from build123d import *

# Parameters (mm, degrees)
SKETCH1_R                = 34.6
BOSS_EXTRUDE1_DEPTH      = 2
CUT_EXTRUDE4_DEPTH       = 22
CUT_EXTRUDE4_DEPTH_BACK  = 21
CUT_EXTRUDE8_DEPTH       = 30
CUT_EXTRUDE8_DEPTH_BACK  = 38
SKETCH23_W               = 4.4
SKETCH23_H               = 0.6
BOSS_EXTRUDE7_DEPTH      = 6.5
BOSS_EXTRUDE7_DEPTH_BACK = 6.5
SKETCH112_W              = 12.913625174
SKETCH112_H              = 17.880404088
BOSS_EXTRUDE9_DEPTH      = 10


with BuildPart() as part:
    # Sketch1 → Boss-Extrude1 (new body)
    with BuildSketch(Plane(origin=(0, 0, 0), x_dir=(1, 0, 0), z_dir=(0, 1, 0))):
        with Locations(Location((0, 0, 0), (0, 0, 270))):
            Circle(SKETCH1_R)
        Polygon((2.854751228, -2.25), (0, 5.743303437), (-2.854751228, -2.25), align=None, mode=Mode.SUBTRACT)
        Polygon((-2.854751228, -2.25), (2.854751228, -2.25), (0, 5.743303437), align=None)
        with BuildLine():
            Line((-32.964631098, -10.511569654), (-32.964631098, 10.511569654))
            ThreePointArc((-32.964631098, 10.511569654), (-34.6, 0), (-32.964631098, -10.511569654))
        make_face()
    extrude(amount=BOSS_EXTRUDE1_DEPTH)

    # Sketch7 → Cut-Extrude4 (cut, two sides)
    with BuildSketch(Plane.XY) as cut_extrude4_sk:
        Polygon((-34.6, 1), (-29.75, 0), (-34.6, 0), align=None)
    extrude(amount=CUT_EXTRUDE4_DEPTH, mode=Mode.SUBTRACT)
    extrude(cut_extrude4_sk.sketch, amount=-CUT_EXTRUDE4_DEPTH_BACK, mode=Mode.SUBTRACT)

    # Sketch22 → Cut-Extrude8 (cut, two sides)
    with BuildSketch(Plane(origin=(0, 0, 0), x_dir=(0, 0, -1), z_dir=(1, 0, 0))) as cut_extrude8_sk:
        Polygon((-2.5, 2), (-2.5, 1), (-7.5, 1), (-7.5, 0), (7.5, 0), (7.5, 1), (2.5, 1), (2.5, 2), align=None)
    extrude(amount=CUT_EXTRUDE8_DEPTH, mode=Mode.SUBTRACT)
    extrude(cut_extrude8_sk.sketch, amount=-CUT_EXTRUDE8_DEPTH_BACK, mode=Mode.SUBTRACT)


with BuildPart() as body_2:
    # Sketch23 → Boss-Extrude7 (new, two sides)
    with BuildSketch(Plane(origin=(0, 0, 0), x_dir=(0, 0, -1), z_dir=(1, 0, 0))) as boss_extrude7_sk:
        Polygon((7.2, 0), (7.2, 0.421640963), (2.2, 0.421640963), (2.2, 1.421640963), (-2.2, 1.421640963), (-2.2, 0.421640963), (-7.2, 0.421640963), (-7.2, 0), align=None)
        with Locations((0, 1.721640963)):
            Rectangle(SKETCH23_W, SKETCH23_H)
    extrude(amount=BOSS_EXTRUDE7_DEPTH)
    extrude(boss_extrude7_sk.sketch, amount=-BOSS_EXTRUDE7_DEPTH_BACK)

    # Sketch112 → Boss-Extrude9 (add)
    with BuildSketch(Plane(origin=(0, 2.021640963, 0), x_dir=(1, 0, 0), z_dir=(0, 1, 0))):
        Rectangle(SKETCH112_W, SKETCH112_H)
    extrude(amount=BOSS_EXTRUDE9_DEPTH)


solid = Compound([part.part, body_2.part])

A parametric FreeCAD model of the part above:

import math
import FreeCAD as App
import Part
import Sketcher

V = App.Vector

doc = App.newDocument("Part")
params = doc.addObject("Spreadsheet::Sheet", "Params")
for row, (alias, value) in enumerate([
    ("sketch1_radius", "34.6 mm"),
    ("pad1_length", "2 mm"),
    ("sketch2_height", "1 mm"),
    ("sketch2_width", "4.85 mm"),
    ("sketch3_width", "1 mm"),
    ("sketch3_height", "5 mm"),
    ("pocket2_length", "30 mm"),
    ("pocket2_length2", "38 mm"),
    ("sketch4_height", "5 mm"),
    ("sketch4_width", "1.6 mm"),
    ("sketch4_height2", "4.4 mm"),
    ("pad2_length", "6.5 mm"),
    ("pad2_length2", "6.5 mm"),
    ("pad3_length", "10 mm"),
], start=1):
    params.set(f"A{row}", alias)
    params.set(f"B{row}", "=" + value)
    params.setAlias(f"B{row}", alias)

body = doc.addObject("PartDesign::Body", "Body")

sketch1 = body.newObject("Sketcher::SketchObject", "Sketch")
sketch1.AttachmentSupport = (doc.getObject("XZ_Plane"), [""])
sketch1.MapMode = "FlatFace"
sketch1.addGeometry([
    Part.ArcOfCircle(Part.Circle(V(0, 0, 0), V(0, 0, 1), 34.6), math.radians(-162.313861), math.radians(162.313861)),
    Part.ArcOfCircle(Part.Circle(V(0, 0, 0), V(0, 0, 1), 34.6), math.radians(162.313861), math.radians(197.686139)),
], False)
sketch1.addConstraint([
    Sketcher.Constraint("Tangent", 0, 1, 1, 2),
    Sketcher.Constraint("Coincident", 1, 1, 0, 2),
    Sketcher.Constraint("Coincident", 0, 3, -1, 1),
    Sketcher.Constraint("Vertical", 0, 1, 1, 1),
    Sketcher.Constraint("Radius", 0, 34.6),
    Sketcher.Constraint("DistanceX", 0, 1, -1, 1, 32.964631),
])
sketch1.setExpression("Constraints[4]", "Params.sketch1_radius")
pad1 = body.newObject("PartDesign::Pad", "Pad")
pad1.Profile = sketch1
pad1.setExpression("Length", "Params.pad1_length")
pad1.Reversed = True

sketch2 = body.newObject("Sketcher::SketchObject", "Sketch001")
sketch2.AttachmentSupport = (doc.getObject("XY_Plane"), [""])
sketch2.MapMode = "FlatFace"
sketch2.addGeometry([
    Part.LineSegment(V(-29.75, 0, 0), V(-34.6, 1, 0)),
    Part.LineSegment(V(-34.6, 1, 0), V(-34.6, 0, 0)),
    Part.LineSegment(V(-34.6, 0, 0), V(-29.75, 0, 0)),
], False)
sketch2.addConstraint([
    Sketcher.Constraint("Coincident", 0, 2, 1, 1),
    Sketcher.Constraint("Coincident", 1, 2, 2, 1),
    Sketcher.Constraint("Coincident", 2, 2, 0, 1),
    Sketcher.Constraint("Vertical", 1),
    Sketcher.Constraint("Horizontal", 2),
    Sketcher.Constraint("PointOnObject", 1, 2, -1),
    Sketcher.Constraint("DistanceY", 1, 2, 1, 1, 1.0),
    Sketcher.Constraint("DistanceX", 2, 1, 2, 2, 4.85),
    Sketcher.Constraint("DistanceX", 0, 2, -1, 1, 34.6),
])
sketch2.setExpression("Constraints[6]", "Params.sketch2_height")
sketch2.setExpression("Constraints[7]", "Params.sketch2_width")
pocket1 = body.newObject("PartDesign::Pocket", "Pocket")
pocket1.Profile = sketch2
pocket1.Type = "ThroughAll"
pocket1.Midplane = True

sketch3 = body.newObject("Sketcher::SketchObject", "Sketch002")
sketch3.AttachmentSupport = (doc.getObject("YZ_Plane"), [""])
sketch3.MapMode = "FlatFace"
sketch3.addGeometry([
    Part.LineSegment(V(2, 2.5, 0), V(1, 2.5, 0)),
    Part.LineSegment(V(1, 2.5, 0), V(1, 7.5, 0)),
    Part.LineSegment(V(1, 7.5, 0), V(0, 7.5, 0)),
    Part.LineSegment(V(0, 7.5, 0), V(0, -7.5, 0)),
    Part.LineSegment(V(0, -7.5, 0), V(1, -7.5, 0)),
    Part.LineSegment(V(1, -7.5, 0), V(1, -2.5, 0)),
    Part.LineSegment(V(1, -2.5, 0), V(2, -2.5, 0)),
    Part.LineSegment(V(2, -2.5, 0), V(2, 2.5, 0)),
], False)
sketch3.addConstraint([
    Sketcher.Constraint("Coincident", 0, 2, 1, 1),
    Sketcher.Constraint("Coincident", 1, 2, 2, 1),
    Sketcher.Constraint("Coincident", 2, 2, 3, 1),
    Sketcher.Constraint("Coincident", 3, 2, 4, 1),
    Sketcher.Constraint("Coincident", 4, 2, 5, 1),
    Sketcher.Constraint("Coincident", 5, 2, 6, 1),
    Sketcher.Constraint("Coincident", 6, 2, 7, 1),
    Sketcher.Constraint("Coincident", 7, 2, 0, 1),
    Sketcher.Constraint("Horizontal", 0),
    Sketcher.Constraint("Vertical", 1),
    Sketcher.Constraint("Horizontal", 2),
    Sketcher.Constraint("Vertical", 3),
    Sketcher.Constraint("Horizontal", 4),
    Sketcher.Constraint("Vertical", 5),
    Sketcher.Constraint("Horizontal", 6),
    Sketcher.Constraint("Vertical", 7),
    Sketcher.Constraint("Symmetric", 2, 2, 3, 2, -1, 1),
    Sketcher.Constraint("Symmetric", 0, 2, 5, 2, -1),
    Sketcher.Constraint("Equal", 0, 2),
    Sketcher.Constraint("Equal", 5, 7),
    Sketcher.Constraint("DistanceX", 0, 2, 0, 1, 1.0),
    Sketcher.Constraint("DistanceY", 1, 1, 1, 2, 5.0),
])
sketch3.setExpression("Constraints[20]", "Params.sketch3_width")
sketch3.setExpression("Constraints[21]", "Params.sketch3_height")
pocket2 = body.newObject("PartDesign::Pocket", "Pocket001")
pocket2.Profile = sketch3
pocket2.Type = "TwoLengths"
pocket2.setExpression("Length", "Params.pocket2_length")
pocket2.setExpression("Length2", "Params.pocket2_length2")
pocket2.Reversed = True
body2 = doc.addObject("PartDesign::Body", "Body001")

sketch4 = body2.newObject("Sketcher::SketchObject", "Sketch003")
sketch4.AttachmentSupport = (doc.getObject("YZ_Plane001"), [""])
sketch4.MapMode = "FlatFace"
sketch4.addGeometry([
    Part.LineSegment(V(0, -7.2, 0), V(0.421641, -7.2, 0)),
    Part.LineSegment(V(0.421641, -7.2, 0), V(0.421641, -2.2, 0)),
    Part.LineSegment(V(0.421641, -2.2, 0), V(2.021641, -2.2, 0)),
    Part.LineSegment(V(2.021641, -2.2, 0), V(2.021641, 2.2, 0)),
    Part.LineSegment(V(2.021641, 2.2, 0), V(0.421641, 2.2, 0)),
    Part.LineSegment(V(0.421641, 2.2, 0), V(0.421641, 7.2, 0)),
    Part.LineSegment(V(0.421641, 7.2, 0), V(0, 7.2, 0)),
    Part.LineSegment(V(0, 7.2, 0), V(0, -7.2, 0)),
], False)
sketch4.addConstraint([
    Sketcher.Constraint("Coincident", 0, 2, 1, 1),
    Sketcher.Constraint("Coincident", 1, 2, 2, 1),
    Sketcher.Constraint("Coincident", 2, 2, 3, 1),
    Sketcher.Constraint("Coincident", 3, 2, 4, 1),
    Sketcher.Constraint("Coincident", 4, 2, 5, 1),
    Sketcher.Constraint("Coincident", 5, 2, 6, 1),
    Sketcher.Constraint("Coincident", 6, 2, 7, 1),
    Sketcher.Constraint("Coincident", 7, 2, 0, 1),
    Sketcher.Constraint("Horizontal", 0),
    Sketcher.Constraint("Vertical", 1),
    Sketcher.Constraint("Horizontal", 2),
    Sketcher.Constraint("Vertical", 3),
    Sketcher.Constraint("Horizontal", 4),
    Sketcher.Constraint("Vertical", 5),
    Sketcher.Constraint("Horizontal", 6),
    Sketcher.Constraint("Vertical", 7),
    Sketcher.Constraint("Symmetric", 6, 2, 7, 2, -1, 1),
    Sketcher.Constraint("Symmetric", 1, 2, 4, 2, -1),
    Sketcher.Constraint("DistanceY", 1, 1, 1, 2, 5.0),
    Sketcher.Constraint("DistanceX", 2, 1, 2, 2, 1.6),
    Sketcher.Constraint("DistanceY", 3, 1, 3, 2, 4.4),
    Sketcher.Constraint("DistanceX", 0, 1, 0, 2, 0.421641),
])
sketch4.setExpression("Constraints[18]", "Params.sketch4_height")
sketch4.setExpression("Constraints[19]", "Params.sketch4_width")
sketch4.setExpression("Constraints[20]", "Params.sketch4_height2")
pad2 = body2.newObject("PartDesign::Pad", "Pad001")
pad2.Profile = sketch4
pad2.Type = "TwoLengths"
pad2.setExpression("Length", "Params.pad2_length")
pad2.setExpression("Length2", "Params.pad2_length2")

sketch5 = body2.newObject("Sketcher::SketchObject", "Sketch004")
sketch5.AttachmentSupport = (doc.getObject("XZ_Plane001"), [""])
sketch5.MapMode = "FlatFace"
sketch5.AttachmentOffset = App.Placement(V(0, 0, -2.021641), App.Rotation())
sketch5.addGeometry([
    Part.LineSegment(V(-6.456813, -8.940202, 0), V(-6.456813, 8.940202, 0)),
    Part.LineSegment(V(-6.456813, 8.940202, 0), V(6.456813, 8.940202, 0)),
    Part.LineSegment(V(6.456813, 8.940202, 0), V(6.456813, -8.940202, 0)),
    Part.LineSegment(V(6.456813, -8.940202, 0), V(-6.456813, -8.940202, 0)),
], False)
sketch5.addConstraint([
    Sketcher.Constraint("Coincident", 0, 2, 1, 1),
    Sketcher.Constraint("Coincident", 1, 2, 2, 1),
    Sketcher.Constraint("Coincident", 2, 2, 3, 1),
    Sketcher.Constraint("Coincident", 3, 2, 0, 1),
    Sketcher.Constraint("Vertical", 0),
    Sketcher.Constraint("Horizontal", 1),
    Sketcher.Constraint("Vertical", 2),
    Sketcher.Constraint("Horizontal", 3),
    Sketcher.Constraint("Symmetric", 0, 2, 2, 2, -1, 1),
    Sketcher.Constraint("DistanceX", 1, 1, 1, 2, 12.913625),
    Sketcher.Constraint("DistanceY", 0, 1, 0, 2, 17.880404),
])
pad3 = body2.newObject("PartDesign::Pad", "Pad002")
pad3.Profile = sketch5
pad3.setExpression("Length", "Params.pad3_length")
pad3.Reversed = True

doc.recompute()
